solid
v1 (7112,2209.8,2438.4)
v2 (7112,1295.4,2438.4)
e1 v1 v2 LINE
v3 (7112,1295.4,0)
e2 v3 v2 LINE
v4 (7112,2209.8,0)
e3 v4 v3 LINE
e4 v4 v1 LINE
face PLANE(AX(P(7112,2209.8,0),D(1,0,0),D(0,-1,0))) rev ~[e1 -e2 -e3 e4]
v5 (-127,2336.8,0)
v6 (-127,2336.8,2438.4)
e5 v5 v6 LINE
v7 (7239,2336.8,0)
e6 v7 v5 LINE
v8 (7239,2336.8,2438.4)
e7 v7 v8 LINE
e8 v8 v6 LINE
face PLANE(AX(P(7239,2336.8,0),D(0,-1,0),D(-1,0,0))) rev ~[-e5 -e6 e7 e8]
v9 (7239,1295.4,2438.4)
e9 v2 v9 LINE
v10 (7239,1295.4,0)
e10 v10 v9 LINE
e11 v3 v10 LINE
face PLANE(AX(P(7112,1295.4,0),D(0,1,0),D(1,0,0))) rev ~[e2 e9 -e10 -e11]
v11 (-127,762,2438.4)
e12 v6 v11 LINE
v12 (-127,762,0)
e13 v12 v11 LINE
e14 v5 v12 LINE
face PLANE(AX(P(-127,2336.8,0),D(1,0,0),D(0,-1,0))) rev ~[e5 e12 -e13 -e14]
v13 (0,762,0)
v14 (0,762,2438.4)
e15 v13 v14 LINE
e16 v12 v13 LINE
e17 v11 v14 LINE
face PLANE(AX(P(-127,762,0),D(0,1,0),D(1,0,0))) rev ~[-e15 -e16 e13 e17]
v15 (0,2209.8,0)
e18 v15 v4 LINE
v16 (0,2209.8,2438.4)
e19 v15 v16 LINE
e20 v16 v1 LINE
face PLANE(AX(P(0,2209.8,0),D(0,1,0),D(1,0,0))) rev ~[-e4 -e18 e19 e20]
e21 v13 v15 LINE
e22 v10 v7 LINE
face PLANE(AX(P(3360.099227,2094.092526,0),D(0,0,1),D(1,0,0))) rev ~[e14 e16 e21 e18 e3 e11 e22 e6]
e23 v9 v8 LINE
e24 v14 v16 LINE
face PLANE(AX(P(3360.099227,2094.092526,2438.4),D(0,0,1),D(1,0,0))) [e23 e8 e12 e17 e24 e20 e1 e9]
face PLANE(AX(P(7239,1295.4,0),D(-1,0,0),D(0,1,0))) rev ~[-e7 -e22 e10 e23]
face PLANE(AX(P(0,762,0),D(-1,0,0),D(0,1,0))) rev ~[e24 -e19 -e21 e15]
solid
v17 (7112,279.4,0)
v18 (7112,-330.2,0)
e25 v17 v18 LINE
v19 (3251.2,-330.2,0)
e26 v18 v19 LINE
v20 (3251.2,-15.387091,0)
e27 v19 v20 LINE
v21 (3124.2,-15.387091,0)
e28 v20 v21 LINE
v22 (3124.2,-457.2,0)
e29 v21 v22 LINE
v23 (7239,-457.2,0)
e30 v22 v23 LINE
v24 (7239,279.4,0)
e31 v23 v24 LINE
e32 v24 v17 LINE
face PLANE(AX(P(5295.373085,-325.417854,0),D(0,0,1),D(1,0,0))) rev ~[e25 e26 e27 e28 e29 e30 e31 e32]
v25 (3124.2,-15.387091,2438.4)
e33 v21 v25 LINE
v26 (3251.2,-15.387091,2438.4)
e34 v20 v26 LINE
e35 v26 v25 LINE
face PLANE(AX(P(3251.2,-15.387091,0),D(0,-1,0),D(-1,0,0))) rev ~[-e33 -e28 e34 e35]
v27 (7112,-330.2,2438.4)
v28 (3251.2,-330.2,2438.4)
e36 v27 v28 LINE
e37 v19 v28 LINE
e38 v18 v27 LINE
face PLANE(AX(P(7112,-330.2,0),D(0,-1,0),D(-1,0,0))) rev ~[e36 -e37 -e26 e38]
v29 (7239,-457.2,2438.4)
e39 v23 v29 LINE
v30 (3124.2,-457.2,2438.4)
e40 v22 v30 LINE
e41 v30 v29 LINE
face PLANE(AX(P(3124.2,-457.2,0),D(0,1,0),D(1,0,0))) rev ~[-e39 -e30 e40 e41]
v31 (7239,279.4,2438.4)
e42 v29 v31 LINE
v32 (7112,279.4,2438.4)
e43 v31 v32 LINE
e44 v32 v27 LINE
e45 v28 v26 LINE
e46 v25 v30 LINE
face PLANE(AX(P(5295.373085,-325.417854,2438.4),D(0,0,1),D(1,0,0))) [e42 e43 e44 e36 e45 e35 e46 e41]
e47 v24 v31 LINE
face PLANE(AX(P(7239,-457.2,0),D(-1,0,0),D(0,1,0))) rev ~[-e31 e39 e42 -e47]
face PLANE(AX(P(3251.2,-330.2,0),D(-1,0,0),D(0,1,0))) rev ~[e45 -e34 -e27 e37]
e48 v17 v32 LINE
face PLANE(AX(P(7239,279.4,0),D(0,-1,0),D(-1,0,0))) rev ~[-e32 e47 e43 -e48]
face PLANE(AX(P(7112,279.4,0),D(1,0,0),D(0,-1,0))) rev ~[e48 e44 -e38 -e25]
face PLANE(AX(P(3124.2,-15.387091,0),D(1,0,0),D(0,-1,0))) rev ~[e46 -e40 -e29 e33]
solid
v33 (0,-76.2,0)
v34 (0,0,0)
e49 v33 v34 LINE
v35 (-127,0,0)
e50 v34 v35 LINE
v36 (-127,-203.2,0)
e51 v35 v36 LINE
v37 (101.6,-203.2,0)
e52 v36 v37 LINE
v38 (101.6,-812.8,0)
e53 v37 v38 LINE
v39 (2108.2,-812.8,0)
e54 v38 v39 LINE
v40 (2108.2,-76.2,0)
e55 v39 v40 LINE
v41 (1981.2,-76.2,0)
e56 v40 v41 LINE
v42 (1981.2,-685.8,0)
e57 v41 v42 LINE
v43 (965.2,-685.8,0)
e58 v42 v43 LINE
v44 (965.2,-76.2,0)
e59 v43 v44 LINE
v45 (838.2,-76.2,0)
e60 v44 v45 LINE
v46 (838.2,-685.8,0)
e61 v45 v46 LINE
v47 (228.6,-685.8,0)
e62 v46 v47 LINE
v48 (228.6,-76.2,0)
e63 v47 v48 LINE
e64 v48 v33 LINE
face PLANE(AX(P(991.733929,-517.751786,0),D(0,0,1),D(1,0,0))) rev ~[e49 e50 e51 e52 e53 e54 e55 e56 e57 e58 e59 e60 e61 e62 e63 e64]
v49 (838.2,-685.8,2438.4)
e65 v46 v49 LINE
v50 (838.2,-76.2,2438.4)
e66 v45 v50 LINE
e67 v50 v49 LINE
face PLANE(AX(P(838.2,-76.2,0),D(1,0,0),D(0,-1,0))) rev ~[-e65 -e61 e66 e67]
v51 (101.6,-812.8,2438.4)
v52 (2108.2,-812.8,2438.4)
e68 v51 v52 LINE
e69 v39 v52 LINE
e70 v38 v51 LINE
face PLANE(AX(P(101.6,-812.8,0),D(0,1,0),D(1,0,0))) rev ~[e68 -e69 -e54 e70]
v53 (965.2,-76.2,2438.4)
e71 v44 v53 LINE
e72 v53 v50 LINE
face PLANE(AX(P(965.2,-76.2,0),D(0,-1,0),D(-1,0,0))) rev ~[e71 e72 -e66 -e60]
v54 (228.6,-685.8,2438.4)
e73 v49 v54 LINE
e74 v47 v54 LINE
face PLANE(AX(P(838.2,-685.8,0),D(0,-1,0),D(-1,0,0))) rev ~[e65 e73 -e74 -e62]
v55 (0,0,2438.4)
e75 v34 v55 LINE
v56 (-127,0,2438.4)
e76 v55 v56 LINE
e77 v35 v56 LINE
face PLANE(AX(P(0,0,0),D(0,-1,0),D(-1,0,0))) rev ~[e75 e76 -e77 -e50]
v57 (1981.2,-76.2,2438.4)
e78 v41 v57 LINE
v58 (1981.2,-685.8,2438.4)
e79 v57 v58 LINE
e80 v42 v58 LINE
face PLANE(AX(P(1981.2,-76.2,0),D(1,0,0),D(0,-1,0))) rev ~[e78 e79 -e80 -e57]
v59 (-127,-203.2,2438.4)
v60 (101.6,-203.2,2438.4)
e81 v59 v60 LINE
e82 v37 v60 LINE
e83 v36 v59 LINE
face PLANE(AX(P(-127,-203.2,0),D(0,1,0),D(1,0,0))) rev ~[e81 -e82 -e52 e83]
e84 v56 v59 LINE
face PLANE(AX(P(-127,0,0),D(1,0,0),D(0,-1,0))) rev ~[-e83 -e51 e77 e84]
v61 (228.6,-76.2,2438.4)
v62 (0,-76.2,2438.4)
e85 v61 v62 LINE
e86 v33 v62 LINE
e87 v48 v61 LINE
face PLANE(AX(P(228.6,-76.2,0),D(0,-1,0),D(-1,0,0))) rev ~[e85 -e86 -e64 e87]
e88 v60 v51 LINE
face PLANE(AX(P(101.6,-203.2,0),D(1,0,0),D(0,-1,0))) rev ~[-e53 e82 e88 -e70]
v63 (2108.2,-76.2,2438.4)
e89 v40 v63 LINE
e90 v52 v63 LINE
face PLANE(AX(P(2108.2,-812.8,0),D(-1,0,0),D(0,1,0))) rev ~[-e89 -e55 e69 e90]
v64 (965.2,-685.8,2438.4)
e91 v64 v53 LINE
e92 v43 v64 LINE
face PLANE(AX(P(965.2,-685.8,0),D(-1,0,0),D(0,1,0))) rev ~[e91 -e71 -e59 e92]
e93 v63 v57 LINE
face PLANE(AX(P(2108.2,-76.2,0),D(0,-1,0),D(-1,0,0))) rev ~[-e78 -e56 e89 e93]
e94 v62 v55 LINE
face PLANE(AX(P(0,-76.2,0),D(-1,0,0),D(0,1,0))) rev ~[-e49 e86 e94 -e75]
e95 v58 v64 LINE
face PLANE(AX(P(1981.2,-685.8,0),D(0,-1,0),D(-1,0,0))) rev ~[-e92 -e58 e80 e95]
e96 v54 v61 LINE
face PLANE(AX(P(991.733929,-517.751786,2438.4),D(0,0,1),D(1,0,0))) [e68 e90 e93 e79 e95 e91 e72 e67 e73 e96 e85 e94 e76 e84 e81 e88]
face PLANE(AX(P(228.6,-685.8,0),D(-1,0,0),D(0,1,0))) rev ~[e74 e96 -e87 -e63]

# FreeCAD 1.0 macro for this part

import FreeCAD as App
import Part
import Sketcher

V = App.Vector
Q = App.Units.Quantity


def add_polygon(sketch, points):
    """Adds a closed chain of lines whose ends are joined by coincident constraints."""
    first, n = sketch.GeometryCount, len(points)
    for a, b in zip(points, points[1:] + points[:1]):
        sketch.addGeometry(Part.LineSegment(App.Vector(*a, 0), App.Vector(*b, 0)), False)
    for i in range(n):
        sketch.addConstraint(Sketcher.Constraint("Coincident", first + i, 2, first + (i + 1) % n, 1))

doc = App.newDocument("Part")
params = doc.addObject("Spreadsheet::Sheet", "Params")
for row, (alias, value) in enumerate([
    ("sketch1_width", "5 in"),
    ("sketch1_width2", "280 in"),
    ("sketch1_width3", "9 in"),
    ("sketch1_width4", "79 in"),
    ("sketch1_width5", "40 in"),
    ("pad1_length", "96 in"),
], start=1):
    params.set(f"A{row}", alias)
    params.set(f"B{row}", "=" + value)
    params.setAlias(f"B{row}", alias)

body = doc.addObject("PartDesign::Body", "Body")
body.AllowCompound = True

# Sketch on XY plane
sketch1 = doc.addObject("Sketcher::SketchObject", "Sketch")
body.addObject(sketch1)
sketch1.AttachmentSupport = (doc.XY_Plane, [""])
sketch1.MapMode = "FlatFace"
add_polygon(sketch1, [(-127, 762), (0, 762), (0, 2210), (7112, 2210), (7112, 1295), (7239, 1295), (7239, 2337), (-127, 2337)])  # lines 0-7
add_polygon(sketch1, [(0, -76), (0, 0), (-127, 0), (-127, -203), (102, -203), (102, -813), (2108, -813), (2108, -76), (1981, -76), (1981, -686), (965, -686), (965, -76), (838, -76), (838, -686), (229, -686), (229, -76)])  # lines 8-23
add_polygon(sketch1, [(7239, -457), (7239, 279), (7112, 279), (7112, -330), (3251, -330), (3251, -15), (3124, -15), (3124, -457)])  # lines 24-31
sketch1.addConstraint([
    Sketcher.Constraint("Horizontal", 0),
    Sketcher.Constraint("Vertical", 1),
    Sketcher.Constraint("Horizontal", 2),
    Sketcher.Constraint("Vertical", 3),
    Sketcher.Constraint("Horizontal", 4),
    Sketcher.Constraint("Vertical", 5),
    Sketcher.Constraint("Horizontal", 6),
    Sketcher.Constraint("Vertical", 7),
    Sketcher.Constraint("Vertical", 8),
    Sketcher.Constraint("Horizontal", 9),
    Sketcher.Constraint("Vertical", 10),
    Sketcher.Constraint("Horizontal", 11),
    Sketcher.Constraint("Vertical", 12),
    Sketcher.Constraint("Horizontal", 13),
    Sketcher.Constraint("Vertical", 14),
    Sketcher.Constraint("Horizontal", 15),
    Sketcher.Constraint("Vertical", 16),
    Sketcher.Constraint("Horizontal", 17),
    Sketcher.Constraint("Vertical", 18),
    Sketcher.Constraint("Horizontal", 19),
    Sketcher.Constraint("Vertical", 20),
    Sketcher.Constraint("Horizontal", 21),
    Sketcher.Constraint("Vertical", 22),
    Sketcher.Constraint("Horizontal", 23),
    Sketcher.Constraint("Vertical", 24),
    Sketcher.Constraint("Horizontal", 25),
    Sketcher.Constraint("Vertical", 26),
    Sketcher.Constraint("Horizontal", 27),
    Sketcher.Constraint("Vertical", 28),
    Sketcher.Constraint("Horizontal", 29),
    Sketcher.Constraint("Vertical", 30),
    Sketcher.Constraint("Horizontal", 31),
    Sketcher.Constraint("Coincident", 8, 2, -1, 1),
    Sketcher.Constraint("PointOnObject", 0, 2, -2),
    Sketcher.Constraint("Horizontal", 15, 2, 18, 2),
    Sketcher.Constraint("Horizontal", 17, 2, 20, 2),
    Sketcher.Constraint("Horizontal", 19, 2, 22, 2),
    Sketcher.Constraint("Vertical", 7, 2, 9, 2),
    Sketcher.Constraint("Vertical", 5, 2, 24, 2),
    Sketcher.Constraint("Vertical", 3, 2, 25, 2),
    Sketcher.Constraint("Equal", 0, 4),
    Sketcher.Constraint("Equal", 9, 15),
    Sketcher.Constraint("Equal", 15, 19),
    Sketcher.Constraint("Equal", 11, 23),
    Sketcher.Constraint("Equal", 25, 29),
    Sketcher.Constraint("Equal", 21, 12),
    Sketcher.Constraint("Equal", 12, 16),
    Sketcher.Constraint("Equal", 14, 24),
    Sketcher.Constraint("Equal", 22, 26),
    Sketcher.Constraint("DistanceX", 0, 1, 0, 2, Q("5 in")),
    Sketcher.Constraint("DistanceX", 2, 1, 2, 2, Q("280 in")),
    Sketcher.Constraint("DistanceX", 11, 1, 11, 2, Q("9 in")),
    Sketcher.Constraint("DistanceX", 13, 1, 13, 2, Q("79 in")),
    Sketcher.Constraint("DistanceX", 17, 2, 17, 1, Q("40 in")),
    Sketcher.Constraint("DistanceX", 27, 2, 27, 1, Q("152 in")),
    Sketcher.Constraint("DistanceY", 1, 1, 1, 2, Q("57 in")),
    Sketcher.Constraint("DistanceY", 3, 2, 3, 1, Q("36 in")),
    Sketcher.Constraint("DistanceY", 5, 1, 5, 2, Q("41 in")),
    Sketcher.Constraint("DistanceY", 8, 1, 8, 2, Q("3 in")),
    Sketcher.Constraint("DistanceY", 10, 2, 10, 1, Q("8 in")),
    Sketcher.Constraint("DistanceY", -1, 1, 0, 2, Q("30 in")),
    Sketcher.Constraint("DistanceY", -1, 1, 24, 2, Q("11 in")),
    Sketcher.Constraint("DistanceY", 28, 1, 28, 2, 314.812909),
])
sketch1.setExpression("Constraints[81]", "Params.sketch1_width")
sketch1.setExpression("Constraints[82]", "Params.sketch1_width2")
sketch1.setExpression("Constraints[83]", "Params.sketch1_width3")
sketch1.setExpression("Constraints[84]", "Params.sketch1_width4")
sketch1.setExpression("Constraints[85]", "Params.sketch1_width5")
pad1 = doc.addObject("PartDesign::Pad", "Pad")
body.addObject(pad1)
pad1.Profile = sketch1
pad1.setExpression("Length", "Params.pad1_length")

doc.recompute()
